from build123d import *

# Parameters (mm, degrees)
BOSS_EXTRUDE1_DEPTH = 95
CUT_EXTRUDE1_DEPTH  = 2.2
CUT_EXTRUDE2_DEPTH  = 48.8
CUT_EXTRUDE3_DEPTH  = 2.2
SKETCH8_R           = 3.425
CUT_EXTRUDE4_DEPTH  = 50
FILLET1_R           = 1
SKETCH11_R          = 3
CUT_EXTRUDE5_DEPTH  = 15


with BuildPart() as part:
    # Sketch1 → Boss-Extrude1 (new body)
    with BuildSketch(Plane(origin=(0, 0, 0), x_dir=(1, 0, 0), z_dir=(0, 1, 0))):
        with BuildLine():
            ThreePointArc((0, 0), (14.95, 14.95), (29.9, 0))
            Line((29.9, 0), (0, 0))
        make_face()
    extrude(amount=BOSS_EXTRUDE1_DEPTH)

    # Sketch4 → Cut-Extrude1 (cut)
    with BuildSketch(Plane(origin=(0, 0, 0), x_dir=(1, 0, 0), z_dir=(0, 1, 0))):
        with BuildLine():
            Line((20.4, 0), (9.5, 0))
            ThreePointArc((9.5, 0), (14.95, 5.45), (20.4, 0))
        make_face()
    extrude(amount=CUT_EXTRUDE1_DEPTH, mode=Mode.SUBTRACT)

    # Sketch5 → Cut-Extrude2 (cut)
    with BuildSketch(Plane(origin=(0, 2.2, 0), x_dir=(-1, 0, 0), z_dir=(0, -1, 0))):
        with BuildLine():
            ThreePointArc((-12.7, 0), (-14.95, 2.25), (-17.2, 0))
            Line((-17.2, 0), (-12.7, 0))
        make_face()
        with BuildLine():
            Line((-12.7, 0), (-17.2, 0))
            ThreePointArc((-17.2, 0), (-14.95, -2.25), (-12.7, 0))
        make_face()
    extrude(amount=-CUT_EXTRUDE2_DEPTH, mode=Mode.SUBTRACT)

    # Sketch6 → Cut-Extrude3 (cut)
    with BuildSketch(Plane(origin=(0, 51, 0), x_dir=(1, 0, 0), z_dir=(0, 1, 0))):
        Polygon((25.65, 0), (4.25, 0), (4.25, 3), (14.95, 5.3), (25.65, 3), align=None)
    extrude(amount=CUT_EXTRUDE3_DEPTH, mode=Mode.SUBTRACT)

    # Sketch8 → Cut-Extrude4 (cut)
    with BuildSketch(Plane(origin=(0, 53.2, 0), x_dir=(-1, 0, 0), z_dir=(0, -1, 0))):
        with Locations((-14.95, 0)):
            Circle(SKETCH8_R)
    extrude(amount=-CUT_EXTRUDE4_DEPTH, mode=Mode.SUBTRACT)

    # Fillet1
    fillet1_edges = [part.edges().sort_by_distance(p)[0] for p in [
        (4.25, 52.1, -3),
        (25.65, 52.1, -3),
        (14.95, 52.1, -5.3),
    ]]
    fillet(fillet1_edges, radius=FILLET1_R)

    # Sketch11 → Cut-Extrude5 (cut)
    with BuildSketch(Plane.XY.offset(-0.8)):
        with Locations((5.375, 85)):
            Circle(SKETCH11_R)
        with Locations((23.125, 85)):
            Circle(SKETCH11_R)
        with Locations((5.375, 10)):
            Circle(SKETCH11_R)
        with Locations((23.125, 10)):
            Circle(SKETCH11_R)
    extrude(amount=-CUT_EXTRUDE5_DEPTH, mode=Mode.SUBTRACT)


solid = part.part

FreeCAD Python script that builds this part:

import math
import FreeCAD as App
import Part
import Sketcher

V = App.Vector
Q = App.Units.Quantity


def edges_at(feature, points):
    """Names of the edges that pass closest to the given points."""
    edges = feature.Shape.Edges
    near = lambda p: min(range(len(edges)), key=lambda i: edges[i].distToShape(Part.Vertex(*p))[0])
    return sorted({f"Edge{near(p) + 1}" for p in points})


def add_polygon(sketch, points):
    """Adds a closed chain of lines whose ends are joined by coincident constraints."""
    first, n = sketch.GeometryCount, len(points)
    for a, b in zip(points, points[1:] + points[:1]):
        sketch.addGeometry(Part.LineSegment(App.Vector(*a, 0), App.Vector(*b, 0)), False)
    for i in range(n):
        sketch.addConstraint(Sketcher.Constraint("Coincident", first + i, 2, first + (i + 1) % n, 1))

doc = App.newDocument("Part")
body = doc.addObject("PartDesign::Body", "Body")

# Sketch on XZ plane
sketch1 = body.newObject("Sketcher::SketchObject", "Sketch")
sketch1.AttachmentSupport = (doc.getObject("XZ_Plane"), [""])
sketch1.MapMode = "FlatFace"
sketch1.addGeometry(Part.ArcOfCircle(Part.Circle(V(15, 0, 0), V(0, 0, 1), 15), math.radians(180), math.radians(360)), False)
sketch1.addGeometry(Part.LineSegment(V(0, 0, 0), V(30, 0, 0)), False)
sketch1.addConstraint(Sketcher.Constraint("Coincident", 0, 1, 1, 1))
sketch1.addConstraint(Sketcher.Constraint("Coincident", 1, 2, 0, 2))
sketch1.addConstraint(Sketcher.Constraint("Horizontal", 1))
sketch1.addConstraint(Sketcher.Constraint("Coincident", 0, 1, -1, 1))
sketch1.addConstraint(Sketcher.Constraint("PointOnObject", 0, 3, -1))
sketch1.addConstraint(Sketcher.Constraint("Radius", 0, Q("14.95 mm")))
pad1 = body.newObject("PartDesign::Pad", "Pad")
pad1.Profile = sketch1
pad1.Length = 95
pad1.Reversed = True

# Sketch on XZ plane
sketch2 = body.newObject("Sketcher::SketchObject", "Sketch001")
sketch2.AttachmentSupport = (doc.getObject("XZ_Plane"), [""])
sketch2.MapMode = "FlatFace"
sketch2.addGeometry(Part.LineSegment(V(10, 0, 0), V(20, 0, 0)), False)
sketch2.addGeometry(Part.ArcOfCircle(Part.Circle(V(15, 0, 0), V(0, 0, 1), 5), math.radians(180), math.radians(360)), False)
sketch2.addConstraint(Sketcher.Constraint("Coincident", 0, 1, 1, 1))
sketch2.addConstraint(Sketcher.Constraint("Coincident", 1, 2, 0, 2))
sketch2.addConstraint(Sketcher.Constraint("Horizontal", 0))
sketch2.addConstraint(Sketcher.Constraint("PointOnObject", 1, 3, -1))
sketch2.addConstraint(Sketcher.Constraint("PointOnObject", 0, 1, -1))
sketch2.addConstraint(Sketcher.Constraint("Radius", 1, Q("5.45 mm")))
sketch2.addConstraint(Sketcher.Constraint("DistanceX", -1, 1, 0, 1, Q("9.5 mm")))
pocket1 = body.newObject("PartDesign::Pocket", "Pocket")
pocket1.Profile = sketch2
pocket1.Length = 2.2

# Sketch on XZ plane
sketch3 = body.newObject("Sketcher::SketchObject", "Sketch002")
sketch3.AttachmentSupport = (doc.getObject("XZ_Plane"), [""])
sketch3.MapMode = "FlatFace"
sketch3.AttachmentOffset = App.Placement(V(0, 0, -2.2), App.Rotation())
sketch3.addGeometry(Part.Circle(V(14.9, 0, 0), V(0, 0, 1), 2.2), False)
sketch3.addConstraint(Sketcher.Constraint("PointOnObject", 0, 3, -1))
sketch3.addConstraint(Sketcher.Constraint("Diameter", 0, Q("4.5 mm")))
sketch3.addConstraint(Sketcher.Constraint("DistanceX", -1, 1, 0, 3, Q("14.95 mm")))
pocket2 = body.newObject("PartDesign::Pocket", "Pocket001")
pocket2.Profile = sketch3
pocket2.Length = 48.8

# Sketch on XZ plane
sketch4 = body.newObject("Sketcher::SketchObject", "Sketch003")
sketch4.AttachmentSupport = (doc.getObject("XZ_Plane"), [""])
sketch4.MapMode = "FlatFace"
sketch4.AttachmentOffset = App.Placement(V(0, 0, -51), App.Rotation())
add_polygon(sketch4, [(4.2, 0), (25.6, 0), (25.6, -3), (14.9, -5.3), (4.2, -3)])  # lines 0-4
sketch4.addConstraint(Sketcher.Constraint("Horizontal", 0))
sketch4.addConstraint(Sketcher.Constraint("Vertical", 1))
sketch4.addConstraint(Sketcher.Constraint("Vertical", 4))
sketch4.addConstraint(Sketcher.Constraint("PointOnObject", 0, 2, -1))
sketch4.addConstraint(Sketcher.Constraint("Horizontal", 1, 2, 3, 2))
sketch4.addConstraint(Sketcher.Constraint("Equal", 2, 3))
sketch4.addConstraint(Sketcher.Constraint("DistanceY", 1, 2, 1, 1, Q("3 mm")))
sketch4.addConstraint(Sketcher.Constraint("DistanceX", 0, 1, 0, 2, Q("21.4 mm")))
sketch4.addConstraint(Sketcher.Constraint("DistanceY", 2, 2, -1, 1, Q("5.3 mm")))
sketch4.addConstraint(Sketcher.Constraint("DistanceX", -1, 1, 0, 2, Q("25.65 mm")))
pocket3 = body.newObject("PartDesign::Pocket", "Pocket002")
pocket3.Profile = sketch4
pocket3.Length = 2.2

# Sketch on XZ plane
sketch5 = body.newObject("Sketcher::SketchObject", "Sketch004")
sketch5.AttachmentSupport = (doc.getObject("XZ_Plane"), [""])
sketch5.MapMode = "FlatFace"
sketch5.AttachmentOffset = App.Placement(V(0, 0, -53.2), App.Rotation())
sketch5.addGeometry(Part.Circle(V(14.9, 0, 0), V(0, 0, 1), 3.4), False)
sketch5.addConstraint(Sketcher.Constraint("PointOnObject", 0, 3, -1))
sketch5.addConstraint(Sketcher.Constraint("Diameter", 0, Q("6.85 mm")))
sketch5.addConstraint(Sketcher.Constraint("DistanceX", -1, 1, 0, 3, Q("14.95 mm")))
pocket4 = body.newObject("PartDesign::Pocket", "Pocket003")
pocket4.Profile = sketch5
pocket4.Length = 50
doc.recompute()

fillet = body.newObject("PartDesign::Fillet", "Fillet")
fillet.Base = (pocket4, edges_at(pocket4, [(4.25, 52.1, -3), (25.65, 52.1, -3), (14.95, 52.1, -5.3)]))
fillet.Radius = 1

# Sketch on XY plane
sketch6 = body.newObject("Sketcher::SketchObject", "Sketch005")
sketch6.AttachmentSupport = (doc.getObject("XY_Plane"), [""])
sketch6.MapMode = "FlatFace"
sketch6.AttachmentOffset = App.Placement(V(0, 0, -0.8), App.Rotation())
sketch6.addGeometry(Part.Circle(V(5.4, 85, 0), V(0, 0, 1), 3), False)
sketch6.addGeometry(Part.Circle(V(23.1, 85, 0), V(0, 0, 1), 3), False)
sketch6.addGeometry(Part.Circle(V(5.4, 10, 0), V(0, 0, 1), 3), False)
sketch6.addGeometry(Part.Circle(V(23.1, 10, 0), V(0, 0, 1), 3), False)
sketch6.addConstraint(Sketcher.Constraint("Equal", 0, 1))
sketch6.addConstraint(Sketcher.Constraint("Equal", 1, 2))
sketch6.addConstraint(Sketcher.Constraint("Equal", 2, 3))
sketch6.addConstraint(Sketcher.Constraint("Horizontal", 0, 3, 1, 3))
sketch6.addConstraint(Sketcher.Constraint("Horizontal", 2, 3, 3, 3))
sketch6.addConstraint(Sketcher.Constraint("Vertical", 0, 3, 2, 3))
sketch6.addConstraint(Sketcher.Constraint("Vertical", 1, 3, 3, 3))
sketch6.addConstraint(Sketcher.Constraint("Diameter", 0, Q("6 mm")))
sketch6.addConstraint(Sketcher.Constraint("DistanceY", -1, 1, 0, 3, Q("85 mm")))
sketch6.addConstraint(Sketcher.Constraint("DistanceY", -1, 1, 2, 3, Q("10 mm")))
sketch6.addConstraint(Sketcher.Constraint("DistanceX", 0, 3, 1, 3, Q("17.75 mm")))
sketch6.addConstraint(Sketcher.Constraint("DistanceX", -1, 1, 0, 3, Q("5.375 mm")))
pocket5 = body.newObject("PartDesign::Pocket", "Pocket004")
pocket5.Profile = sketch6
pocket5.Length = 15

doc.recompute()
